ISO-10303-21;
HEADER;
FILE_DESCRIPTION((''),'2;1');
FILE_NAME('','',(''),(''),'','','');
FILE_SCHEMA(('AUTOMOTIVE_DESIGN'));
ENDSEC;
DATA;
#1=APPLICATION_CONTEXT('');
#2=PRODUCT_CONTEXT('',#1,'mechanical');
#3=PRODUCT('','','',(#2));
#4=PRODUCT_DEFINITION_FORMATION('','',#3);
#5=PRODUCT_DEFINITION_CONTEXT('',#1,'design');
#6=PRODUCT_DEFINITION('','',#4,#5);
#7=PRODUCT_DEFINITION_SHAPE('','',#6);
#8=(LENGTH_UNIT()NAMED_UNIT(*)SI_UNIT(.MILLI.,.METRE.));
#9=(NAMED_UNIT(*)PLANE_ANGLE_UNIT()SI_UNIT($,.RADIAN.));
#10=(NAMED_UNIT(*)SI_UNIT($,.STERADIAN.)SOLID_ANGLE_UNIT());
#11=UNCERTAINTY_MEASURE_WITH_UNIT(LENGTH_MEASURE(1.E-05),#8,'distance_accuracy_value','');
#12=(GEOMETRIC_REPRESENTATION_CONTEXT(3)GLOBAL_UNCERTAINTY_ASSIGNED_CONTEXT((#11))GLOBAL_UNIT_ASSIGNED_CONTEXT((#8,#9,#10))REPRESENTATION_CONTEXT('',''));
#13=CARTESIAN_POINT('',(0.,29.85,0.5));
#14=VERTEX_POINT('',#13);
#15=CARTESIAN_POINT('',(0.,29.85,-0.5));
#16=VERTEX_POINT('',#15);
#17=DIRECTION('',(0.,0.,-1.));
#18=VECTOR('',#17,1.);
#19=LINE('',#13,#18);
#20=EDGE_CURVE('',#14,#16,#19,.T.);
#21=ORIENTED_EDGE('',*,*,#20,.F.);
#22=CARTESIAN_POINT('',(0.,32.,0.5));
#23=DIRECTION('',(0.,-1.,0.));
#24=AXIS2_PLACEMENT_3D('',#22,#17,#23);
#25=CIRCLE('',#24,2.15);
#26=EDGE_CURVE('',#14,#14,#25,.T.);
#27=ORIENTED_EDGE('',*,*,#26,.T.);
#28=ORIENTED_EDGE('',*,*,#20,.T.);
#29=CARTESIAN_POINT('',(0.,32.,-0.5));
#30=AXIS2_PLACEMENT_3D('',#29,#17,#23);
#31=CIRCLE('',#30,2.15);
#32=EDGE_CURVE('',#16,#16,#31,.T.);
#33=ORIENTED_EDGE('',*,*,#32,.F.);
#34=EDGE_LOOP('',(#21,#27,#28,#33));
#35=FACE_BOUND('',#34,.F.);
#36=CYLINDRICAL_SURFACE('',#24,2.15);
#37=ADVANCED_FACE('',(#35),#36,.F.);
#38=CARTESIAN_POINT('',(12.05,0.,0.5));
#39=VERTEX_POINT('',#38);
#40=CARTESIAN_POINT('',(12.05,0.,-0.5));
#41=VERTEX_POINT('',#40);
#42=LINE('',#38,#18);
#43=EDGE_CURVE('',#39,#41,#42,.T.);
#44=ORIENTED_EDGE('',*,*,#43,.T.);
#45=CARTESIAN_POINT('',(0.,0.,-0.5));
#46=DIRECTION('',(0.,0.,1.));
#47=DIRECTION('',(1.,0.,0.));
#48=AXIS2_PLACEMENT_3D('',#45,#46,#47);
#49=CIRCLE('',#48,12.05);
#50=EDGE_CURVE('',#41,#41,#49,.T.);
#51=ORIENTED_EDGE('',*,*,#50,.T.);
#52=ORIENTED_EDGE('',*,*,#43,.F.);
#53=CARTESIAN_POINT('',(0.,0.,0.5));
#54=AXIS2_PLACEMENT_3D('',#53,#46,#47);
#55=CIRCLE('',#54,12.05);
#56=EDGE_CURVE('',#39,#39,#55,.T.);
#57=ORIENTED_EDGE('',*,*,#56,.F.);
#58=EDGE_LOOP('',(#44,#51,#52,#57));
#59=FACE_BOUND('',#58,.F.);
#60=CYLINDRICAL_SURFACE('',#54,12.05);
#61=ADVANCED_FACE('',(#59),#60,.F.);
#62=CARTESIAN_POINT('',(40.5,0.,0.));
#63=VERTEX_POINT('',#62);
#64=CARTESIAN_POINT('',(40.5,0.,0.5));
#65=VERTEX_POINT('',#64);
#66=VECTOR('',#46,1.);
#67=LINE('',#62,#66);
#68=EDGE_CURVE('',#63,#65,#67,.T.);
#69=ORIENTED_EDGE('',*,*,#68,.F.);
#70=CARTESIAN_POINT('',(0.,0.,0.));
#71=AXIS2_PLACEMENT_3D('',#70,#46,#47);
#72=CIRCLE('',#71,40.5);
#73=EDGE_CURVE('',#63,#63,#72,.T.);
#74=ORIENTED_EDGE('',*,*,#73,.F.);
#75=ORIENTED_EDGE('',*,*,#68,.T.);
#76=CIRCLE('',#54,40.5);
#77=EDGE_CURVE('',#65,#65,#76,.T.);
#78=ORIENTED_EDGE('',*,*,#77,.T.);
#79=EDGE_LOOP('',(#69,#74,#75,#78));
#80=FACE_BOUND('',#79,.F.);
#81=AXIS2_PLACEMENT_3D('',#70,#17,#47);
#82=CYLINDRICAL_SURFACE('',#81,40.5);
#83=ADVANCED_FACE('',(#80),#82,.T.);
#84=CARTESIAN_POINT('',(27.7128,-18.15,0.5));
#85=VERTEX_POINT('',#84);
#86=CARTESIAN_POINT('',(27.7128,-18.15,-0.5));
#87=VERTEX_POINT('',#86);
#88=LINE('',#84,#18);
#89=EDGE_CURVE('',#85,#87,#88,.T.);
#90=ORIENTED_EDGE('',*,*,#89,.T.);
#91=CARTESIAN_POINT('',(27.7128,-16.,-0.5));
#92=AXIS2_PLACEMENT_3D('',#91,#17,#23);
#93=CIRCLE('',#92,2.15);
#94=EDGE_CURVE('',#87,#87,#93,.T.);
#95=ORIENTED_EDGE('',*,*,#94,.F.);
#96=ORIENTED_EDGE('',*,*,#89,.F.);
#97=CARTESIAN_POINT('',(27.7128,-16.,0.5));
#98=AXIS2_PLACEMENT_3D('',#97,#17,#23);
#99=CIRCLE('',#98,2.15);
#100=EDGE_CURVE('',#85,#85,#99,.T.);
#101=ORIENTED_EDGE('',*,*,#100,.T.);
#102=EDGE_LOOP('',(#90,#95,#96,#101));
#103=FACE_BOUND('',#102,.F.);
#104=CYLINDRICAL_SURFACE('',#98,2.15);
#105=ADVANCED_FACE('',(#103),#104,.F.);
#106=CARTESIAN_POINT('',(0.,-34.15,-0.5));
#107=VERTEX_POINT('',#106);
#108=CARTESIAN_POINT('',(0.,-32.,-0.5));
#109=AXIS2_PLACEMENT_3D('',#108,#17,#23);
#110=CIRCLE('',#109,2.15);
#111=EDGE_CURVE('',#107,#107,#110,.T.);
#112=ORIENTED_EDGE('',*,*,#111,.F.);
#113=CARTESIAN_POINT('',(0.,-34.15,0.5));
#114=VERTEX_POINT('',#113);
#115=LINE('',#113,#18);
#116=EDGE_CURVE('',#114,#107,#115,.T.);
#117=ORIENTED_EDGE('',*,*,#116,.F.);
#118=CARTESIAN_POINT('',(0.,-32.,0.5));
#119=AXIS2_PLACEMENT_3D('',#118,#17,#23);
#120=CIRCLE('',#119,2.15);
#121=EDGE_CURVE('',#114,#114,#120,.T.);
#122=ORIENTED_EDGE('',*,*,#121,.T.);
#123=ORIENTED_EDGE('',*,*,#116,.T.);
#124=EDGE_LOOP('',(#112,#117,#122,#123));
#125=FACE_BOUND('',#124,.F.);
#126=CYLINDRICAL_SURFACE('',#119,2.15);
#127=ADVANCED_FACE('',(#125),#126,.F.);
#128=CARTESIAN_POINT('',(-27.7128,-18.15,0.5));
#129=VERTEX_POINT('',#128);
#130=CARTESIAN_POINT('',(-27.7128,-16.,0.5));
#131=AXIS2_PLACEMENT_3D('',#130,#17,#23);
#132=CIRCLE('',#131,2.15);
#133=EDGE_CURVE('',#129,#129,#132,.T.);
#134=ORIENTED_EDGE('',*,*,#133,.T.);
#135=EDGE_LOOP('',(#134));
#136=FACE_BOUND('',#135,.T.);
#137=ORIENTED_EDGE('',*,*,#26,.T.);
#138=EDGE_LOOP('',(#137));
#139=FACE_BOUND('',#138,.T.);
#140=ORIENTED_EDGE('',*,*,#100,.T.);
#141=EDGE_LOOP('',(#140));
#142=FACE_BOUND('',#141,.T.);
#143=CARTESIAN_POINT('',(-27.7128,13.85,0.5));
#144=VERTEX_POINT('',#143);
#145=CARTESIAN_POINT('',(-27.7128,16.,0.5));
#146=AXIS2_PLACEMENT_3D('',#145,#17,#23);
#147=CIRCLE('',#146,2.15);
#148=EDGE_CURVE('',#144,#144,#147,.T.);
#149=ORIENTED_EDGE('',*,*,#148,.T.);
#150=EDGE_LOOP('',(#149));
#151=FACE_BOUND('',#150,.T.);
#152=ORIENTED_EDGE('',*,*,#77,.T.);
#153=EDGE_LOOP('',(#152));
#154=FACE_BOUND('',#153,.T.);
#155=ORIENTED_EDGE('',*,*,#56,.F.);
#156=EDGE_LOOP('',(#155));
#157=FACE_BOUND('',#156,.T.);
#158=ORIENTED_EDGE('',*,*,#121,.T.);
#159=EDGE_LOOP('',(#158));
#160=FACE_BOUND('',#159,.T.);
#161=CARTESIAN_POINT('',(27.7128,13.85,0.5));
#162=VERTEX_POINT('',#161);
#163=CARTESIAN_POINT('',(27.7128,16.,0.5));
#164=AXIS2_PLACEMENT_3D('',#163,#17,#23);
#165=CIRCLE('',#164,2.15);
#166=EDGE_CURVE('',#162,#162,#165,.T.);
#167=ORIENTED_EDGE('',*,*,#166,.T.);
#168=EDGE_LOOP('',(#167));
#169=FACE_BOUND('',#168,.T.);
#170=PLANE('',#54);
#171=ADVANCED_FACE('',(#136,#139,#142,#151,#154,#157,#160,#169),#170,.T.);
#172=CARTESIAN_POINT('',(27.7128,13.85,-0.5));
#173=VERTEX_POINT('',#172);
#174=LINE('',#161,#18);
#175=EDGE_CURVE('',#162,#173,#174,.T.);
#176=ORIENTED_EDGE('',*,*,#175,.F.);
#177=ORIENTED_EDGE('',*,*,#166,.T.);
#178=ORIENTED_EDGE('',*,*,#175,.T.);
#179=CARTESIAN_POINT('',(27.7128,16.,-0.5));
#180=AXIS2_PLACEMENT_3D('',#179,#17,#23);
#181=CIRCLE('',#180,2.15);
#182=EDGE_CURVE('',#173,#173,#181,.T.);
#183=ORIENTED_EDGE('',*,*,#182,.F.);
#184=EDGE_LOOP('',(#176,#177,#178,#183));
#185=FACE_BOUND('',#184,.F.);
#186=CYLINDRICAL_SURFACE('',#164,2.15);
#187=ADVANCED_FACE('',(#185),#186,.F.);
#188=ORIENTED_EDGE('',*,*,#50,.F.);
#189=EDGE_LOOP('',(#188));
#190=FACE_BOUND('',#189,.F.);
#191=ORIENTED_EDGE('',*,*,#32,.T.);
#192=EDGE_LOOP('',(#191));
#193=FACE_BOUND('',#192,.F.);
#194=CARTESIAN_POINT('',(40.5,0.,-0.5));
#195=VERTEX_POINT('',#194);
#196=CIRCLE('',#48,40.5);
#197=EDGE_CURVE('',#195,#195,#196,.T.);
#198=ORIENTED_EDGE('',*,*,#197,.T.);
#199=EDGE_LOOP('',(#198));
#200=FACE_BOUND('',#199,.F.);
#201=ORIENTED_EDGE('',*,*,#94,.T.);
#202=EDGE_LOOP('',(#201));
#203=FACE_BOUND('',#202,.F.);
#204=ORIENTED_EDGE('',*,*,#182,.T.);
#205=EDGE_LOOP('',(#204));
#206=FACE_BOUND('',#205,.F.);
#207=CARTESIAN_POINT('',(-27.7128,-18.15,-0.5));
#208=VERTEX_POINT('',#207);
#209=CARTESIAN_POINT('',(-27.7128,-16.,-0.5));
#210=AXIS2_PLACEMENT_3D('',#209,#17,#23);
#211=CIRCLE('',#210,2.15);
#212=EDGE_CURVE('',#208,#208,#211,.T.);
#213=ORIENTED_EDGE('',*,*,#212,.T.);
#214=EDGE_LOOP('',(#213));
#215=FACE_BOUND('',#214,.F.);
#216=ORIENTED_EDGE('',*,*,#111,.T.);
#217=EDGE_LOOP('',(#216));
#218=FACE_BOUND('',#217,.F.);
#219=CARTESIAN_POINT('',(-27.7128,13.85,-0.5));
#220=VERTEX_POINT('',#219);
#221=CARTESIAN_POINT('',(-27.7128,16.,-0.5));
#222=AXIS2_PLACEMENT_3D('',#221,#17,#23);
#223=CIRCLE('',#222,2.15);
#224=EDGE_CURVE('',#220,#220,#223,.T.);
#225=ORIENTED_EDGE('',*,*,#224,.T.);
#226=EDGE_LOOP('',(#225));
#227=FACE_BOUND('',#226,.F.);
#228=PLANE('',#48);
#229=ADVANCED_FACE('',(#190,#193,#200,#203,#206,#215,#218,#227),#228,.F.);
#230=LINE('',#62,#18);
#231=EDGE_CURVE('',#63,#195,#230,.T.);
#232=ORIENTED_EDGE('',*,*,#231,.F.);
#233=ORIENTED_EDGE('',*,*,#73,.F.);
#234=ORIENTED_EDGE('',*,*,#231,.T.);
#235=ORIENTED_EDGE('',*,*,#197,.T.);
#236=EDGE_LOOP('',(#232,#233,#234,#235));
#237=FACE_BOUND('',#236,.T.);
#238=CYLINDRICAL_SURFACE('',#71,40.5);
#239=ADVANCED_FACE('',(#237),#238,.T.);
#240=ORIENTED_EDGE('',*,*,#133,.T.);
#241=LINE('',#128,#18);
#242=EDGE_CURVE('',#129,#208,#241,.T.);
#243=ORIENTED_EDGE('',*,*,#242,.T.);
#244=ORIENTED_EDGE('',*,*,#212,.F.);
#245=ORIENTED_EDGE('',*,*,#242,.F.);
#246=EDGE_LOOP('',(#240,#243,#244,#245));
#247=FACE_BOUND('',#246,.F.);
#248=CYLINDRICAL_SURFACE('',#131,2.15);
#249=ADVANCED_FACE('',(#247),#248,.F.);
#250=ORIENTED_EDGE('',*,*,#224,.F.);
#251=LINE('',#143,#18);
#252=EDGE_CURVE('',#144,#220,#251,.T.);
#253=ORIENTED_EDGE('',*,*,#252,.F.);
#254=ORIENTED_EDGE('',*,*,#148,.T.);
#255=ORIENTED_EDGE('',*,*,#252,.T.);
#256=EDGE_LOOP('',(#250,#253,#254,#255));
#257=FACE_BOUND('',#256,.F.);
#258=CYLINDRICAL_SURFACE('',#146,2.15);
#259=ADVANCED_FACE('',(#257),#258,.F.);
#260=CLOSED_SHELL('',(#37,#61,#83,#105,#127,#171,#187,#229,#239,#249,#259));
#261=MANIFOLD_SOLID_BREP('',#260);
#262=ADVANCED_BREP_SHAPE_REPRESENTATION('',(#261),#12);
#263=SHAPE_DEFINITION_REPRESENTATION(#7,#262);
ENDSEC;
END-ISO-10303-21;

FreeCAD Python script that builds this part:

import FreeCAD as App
import Part
import Sketcher

V = App.Vector
Q = App.Units.Quantity

doc = App.newDocument("Part")
body = doc.addObject("PartDesign::Body", "Body")

# Sketch on XY plane
sketch1 = doc.addObject("Sketcher::SketchObject", "Sketch")
body.addObject(sketch1)
sketch1.AttachmentSupport = (doc.XY_Plane, [""])
sketch1.MapMode = "FlatFace"
sketch1.addGeometry(Part.Circle(V(0, 0, 0), V(0, 0, 1), 40.5), False)
sketch1.addConstraint(Sketcher.Constraint("Coincident", 0, 3, -1, 1))
sketch1.addConstraint(Sketcher.Constraint("Diameter", 0, Q("81 mm")))
pad1 = doc.addObject("PartDesign::Pad", "Pad")
body.addObject(pad1)
pad1.Profile = sketch1
pad1.Length = 1
pad1.Midplane = True

# Sketch on XY plane
sketch2 = doc.addObject("Sketcher::SketchObject", "Sketch001")
body.addObject(sketch2)
sketch2.AttachmentSupport = (doc.XY_Plane, [""])
sketch2.MapMode = "FlatFace"
sketch2.AttachmentOffset = App.Placement(V(0, 0, 0.5), App.Rotation())
sketch2.addGeometry(Part.Circle(V(0, 0, 0), V(0, 0, 1), 12.05), False)
sketch2.addConstraint(Sketcher.Constraint("Coincident", 0, 3, -1, 1))
sketch2.addConstraint(Sketcher.Constraint("Diameter", 0, Q("24.1 mm")))
pocket1 = doc.addObject("PartDesign::Pocket", "Pocket")
body.addObject(pocket1)
pocket1.Profile = sketch2
pocket1.Length = 10

# Sketch on XY plane
sketch3 = doc.addObject("Sketcher::SketchObject", "Sketch002")
body.addObject(sketch3)
sketch3.AttachmentSupport = (doc.XY_Plane, [""])
sketch3.MapMode = "FlatFace"
sketch3.AttachmentOffset = App.Placement(V(0, 0, 0.5), App.Rotation())
sketch3.addGeometry(Part.Circle(V(0, 32, 0), V(0, 0, 1), 2.15), False)
sketch3.addGeometry(Part.Circle(V(-27.7128, 16, 0), V(0, 0, 1), 2.15), False)
sketch3.addGeometry(Part.Circle(V(-27.7128, -16, 0), V(0, 0, 1), 2.15), False)
sketch3.addGeometry(Part.Circle(V(0, -32, 0), V(0, 0, 1), 2.15), False)
sketch3.addGeometry(Part.Circle(V(27.7128, -16, 0), V(0, 0, 1), 2.15), False)
sketch3.addGeometry(Part.Circle(V(27.7128, 16, 0), V(0, 0, 1), 2.15), False)
sketch3.addConstraint(Sketcher.Constraint("Equal", 0, 1))
sketch3.addConstraint(Sketcher.Constraint("Equal", 1, 2))
sketch3.addConstraint(Sketcher.Constraint("Equal", 2, 3))
sketch3.addConstraint(Sketcher.Constraint("Equal", 3, 4))
sketch3.addConstraint(Sketcher.Constraint("Equal", 4, 5))
sketch3.addConstraint(Sketcher.Constraint("Symmetric", 0, 3, 3, 3, -1, 1))
sketch3.addConstraint(Sketcher.Constraint("Symmetric", 1, 3, 4, 3, -1, 1))
sketch3.addConstraint(Sketcher.Constraint("Symmetric", 2, 3, 5, 3, -1, 1))
sketch3.addConstraint(Sketcher.Constraint("Symmetric", 2, 3, 4, 3, -2))
sketch3.addConstraint(Sketcher.Constraint("PointOnObject", 0, 3, -2))
sketch3.addConstraint(Sketcher.Constraint("Diameter", 0, Q("4.3 mm")))
sketch3.addConstraint(Sketcher.Constraint("DistanceY", -1, 1, 0, 3, Q("32 mm")))
sketch3.addConstraint(Sketcher.Constraint("DistanceY", -1, 1, 1, 3, Q("16 mm")))
sketch3.addConstraint(Sketcher.Constraint("DistanceX", 1, 3, -1, 1, Q("27.7128 mm")))
doc.recompute()
hole = doc.addObject("PartDesign::Hole", "Hole")
body.addObject(hole)
hole.Profile = sketch3
hole.ThreadType = "None"
hole.Diameter = 4.3
hole.DepthType = "ThroughAll"

doc.recompute()
